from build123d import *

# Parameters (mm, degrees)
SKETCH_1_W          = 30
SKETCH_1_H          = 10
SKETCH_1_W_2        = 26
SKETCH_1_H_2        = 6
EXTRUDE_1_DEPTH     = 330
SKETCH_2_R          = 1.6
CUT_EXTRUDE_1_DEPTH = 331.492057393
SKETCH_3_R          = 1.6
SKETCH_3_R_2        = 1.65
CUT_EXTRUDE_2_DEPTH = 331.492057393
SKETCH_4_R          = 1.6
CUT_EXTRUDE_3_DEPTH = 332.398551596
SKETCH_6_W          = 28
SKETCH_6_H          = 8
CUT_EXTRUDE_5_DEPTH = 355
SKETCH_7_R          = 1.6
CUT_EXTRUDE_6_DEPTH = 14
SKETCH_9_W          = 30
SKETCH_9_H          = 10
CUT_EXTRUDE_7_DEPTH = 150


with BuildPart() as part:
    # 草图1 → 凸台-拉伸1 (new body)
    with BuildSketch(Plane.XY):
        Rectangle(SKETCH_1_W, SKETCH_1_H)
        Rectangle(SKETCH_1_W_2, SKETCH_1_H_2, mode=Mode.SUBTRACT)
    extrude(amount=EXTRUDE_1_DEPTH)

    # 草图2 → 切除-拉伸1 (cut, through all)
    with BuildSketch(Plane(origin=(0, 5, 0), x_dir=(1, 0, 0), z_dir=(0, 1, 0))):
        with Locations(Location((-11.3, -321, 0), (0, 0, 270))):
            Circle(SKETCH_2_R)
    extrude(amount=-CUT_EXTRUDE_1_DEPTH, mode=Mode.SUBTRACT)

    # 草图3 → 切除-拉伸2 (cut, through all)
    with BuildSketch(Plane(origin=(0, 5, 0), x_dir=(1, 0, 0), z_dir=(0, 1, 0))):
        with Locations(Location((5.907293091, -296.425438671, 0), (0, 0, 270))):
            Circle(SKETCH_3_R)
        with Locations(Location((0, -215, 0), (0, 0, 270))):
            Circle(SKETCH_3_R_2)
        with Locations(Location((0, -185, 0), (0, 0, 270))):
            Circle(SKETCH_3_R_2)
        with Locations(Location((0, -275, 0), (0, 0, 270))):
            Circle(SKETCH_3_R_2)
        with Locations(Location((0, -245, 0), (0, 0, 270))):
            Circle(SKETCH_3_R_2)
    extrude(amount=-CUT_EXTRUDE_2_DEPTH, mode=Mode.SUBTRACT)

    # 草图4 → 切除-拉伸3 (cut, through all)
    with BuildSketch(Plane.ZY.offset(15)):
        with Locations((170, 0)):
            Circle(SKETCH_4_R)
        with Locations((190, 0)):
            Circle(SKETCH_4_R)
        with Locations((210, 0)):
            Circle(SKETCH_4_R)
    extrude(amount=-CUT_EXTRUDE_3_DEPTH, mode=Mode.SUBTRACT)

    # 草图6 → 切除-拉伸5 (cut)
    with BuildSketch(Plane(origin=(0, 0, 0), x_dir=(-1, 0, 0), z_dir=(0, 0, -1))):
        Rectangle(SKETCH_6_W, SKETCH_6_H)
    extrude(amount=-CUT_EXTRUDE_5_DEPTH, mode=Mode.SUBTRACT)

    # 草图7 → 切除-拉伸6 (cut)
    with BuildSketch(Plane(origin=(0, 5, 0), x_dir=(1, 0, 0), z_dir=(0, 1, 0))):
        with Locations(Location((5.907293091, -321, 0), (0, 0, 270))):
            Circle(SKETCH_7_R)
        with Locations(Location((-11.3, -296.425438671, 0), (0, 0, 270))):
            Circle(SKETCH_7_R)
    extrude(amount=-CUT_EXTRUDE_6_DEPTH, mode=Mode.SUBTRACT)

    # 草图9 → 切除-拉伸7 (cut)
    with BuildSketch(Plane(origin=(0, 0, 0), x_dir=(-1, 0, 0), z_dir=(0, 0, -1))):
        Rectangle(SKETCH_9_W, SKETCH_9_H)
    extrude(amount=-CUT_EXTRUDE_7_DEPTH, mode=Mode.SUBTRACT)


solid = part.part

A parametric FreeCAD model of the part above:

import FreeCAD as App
import Part
import Sketcher
from FreeCAD import Vector


def add_polygon(sketch, points):
    """Adds a closed chain of lines whose ends are joined by coincident constraints."""
    first, n = sketch.GeometryCount, len(points)
    for a, b in zip(points, points[1:] + points[:1]):
        sketch.addGeometry(Part.LineSegment(App.Vector(*a, 0), App.Vector(*b, 0)), False)
    for i in range(n):
        sketch.addConstraint(Sketcher.Constraint("Coincident", first + i, 2, first + (i + 1) % n, 1))

doc = App.newDocument("Part")
body = doc.addObject("PartDesign::Body", "Body")

sketch1 = body.newObject("Sketcher::SketchObject", "Sketch")
sketch1.AttachmentSupport = (doc.getObject("XY_Plane"), [""])
sketch1.MapMode = "FlatFace"
add_polygon(sketch1, [(-15, 5), (-15, -5), (15, -5), (15, 5)])
add_polygon(sketch1, [(13, -3), (-13, -3), (-13, 3), (13, 3)])
sketch1.addConstraint(Sketcher.Constraint("Vertical", 0))
sketch1.addConstraint(Sketcher.Constraint("Horizontal", 1))
sketch1.addConstraint(Sketcher.Constraint("Vertical", 2))
sketch1.addConstraint(Sketcher.Constraint("Horizontal", 3))
sketch1.addConstraint(Sketcher.Constraint("Horizontal", 4))
sketch1.addConstraint(Sketcher.Constraint("Vertical", 5))
sketch1.addConstraint(Sketcher.Constraint("Horizontal", 6))
sketch1.addConstraint(Sketcher.Constraint("Vertical", 7))
sketch1.addConstraint(Sketcher.Constraint("Symmetric", 0, 2, 2, 2, -1, 1))
sketch1.addConstraint(Sketcher.Constraint("Symmetric", 4, 2, 6, 2, -1, 1))
sketch1.addConstraint(Sketcher.Constraint("DistanceX", 1, 1, 1, 2, 30.0))
sketch1.addConstraint(Sketcher.Constraint("DistanceX", 4, 2, 4, 1, 26.0))
sketch1.addConstraint(Sketcher.Constraint("DistanceY", 0, 2, 0, 1, 10.0))
sketch1.addConstraint(Sketcher.Constraint("DistanceY", 5, 1, 5, 2, 6.0))
pad1 = body.newObject("PartDesign::Pad", "Pad")
pad1.Profile = sketch1
pad1.Length = 330

sketch2 = body.newObject("Sketcher::SketchObject", "Sketch001")
sketch2.AttachmentSupport = (doc.getObject("XZ_Plane"), [""])
sketch2.MapMode = "FlatFace"
sketch2.AttachmentOffset = App.Placement(Vector(0, 0, -5), App.Rotation())
sketch2.addGeometry(Part.Circle(Vector(-11.3, 321, 0), Vector(0, 0, 1), 1.6), False)
sketch2.addConstraint(Sketcher.Constraint("Diameter", 0, 3.2))
sketch2.addConstraint(Sketcher.Constraint("DistanceY", -1, 1, 0, 3, 321.0))
sketch2.addConstraint(Sketcher.Constraint("DistanceX", 0, 3, -1, 1, 11.3))
pocket1 = body.newObject("PartDesign::Pocket", "Pocket")
pocket1.Profile = sketch2
pocket1.Type = "ThroughAll"
pocket1.Reversed = True

sketch3 = body.newObject("Sketcher::SketchObject", "Sketch002")
sketch3.AttachmentSupport = (doc.getObject("XZ_Plane"), [""])
sketch3.MapMode = "FlatFace"
sketch3.AttachmentOffset = App.Placement(Vector(0, 0, -5), App.Rotation())
sketch3.addGeometry(Part.Circle(Vector(5.9, 296.4, 0), Vector(0, 0, 1), 1.6), False)
sketch3.addGeometry(Part.Circle(Vector(0, 215, 0), Vector(0, 0, 1), 1.6), False)
sketch3.addGeometry(Part.Circle(Vector(0, 185, 0), Vector(0, 0, 1), 1.6), False)
sketch3.addGeometry(Part.Circle(Vector(0, 275, 0), Vector(0, 0, 1), 1.6), False)
sketch3.addGeometry(Part.Circle(Vector(0, 245, 0), Vector(0, 0, 1), 1.6), False)
sketch3.addConstraint(Sketcher.Constraint("Equal", 1, 2))
sketch3.addConstraint(Sketcher.Constraint("Equal", 2, 3))
sketch3.addConstraint(Sketcher.Constraint("Equal", 3, 4))
sketch3.addConstraint(Sketcher.Constraint("PointOnObject", 1, 3, -2))
sketch3.addConstraint(Sketcher.Constraint("PointOnObject", 2, 3, -2))
sketch3.addConstraint(Sketcher.Constraint("PointOnObject", 3, 3, -2))
sketch3.addConstraint(Sketcher.Constraint("PointOnObject", 4, 3, -2))
sketch3.addConstraint(Sketcher.Constraint("Diameter", 0, 3.2))
sketch3.addConstraint(Sketcher.Constraint("Diameter", 1, 3.3))
sketch3.addConstraint(Sketcher.Constraint("DistanceY", -1, 1, 1, 3, 215.0))
sketch3.addConstraint(Sketcher.Constraint("DistanceY", -1, 1, 2, 3, 185.0))
sketch3.addConstraint(Sketcher.Constraint("DistanceY", -1, 1, 3, 3, 275.0))
sketch3.addConstraint(Sketcher.Constraint("DistanceY", -1, 1, 4, 3, 245.0))
sketch3.addConstraint(Sketcher.Constraint("DistanceY", -1, 1, 0, 3, 296.425439))
sketch3.addConstraint(Sketcher.Constraint("DistanceX", -1, 1, 0, 3, 5.907293))
pocket2 = body.newObject("PartDesign::Pocket", "Pocket001")
pocket2.Profile = sketch3
pocket2.Type = "ThroughAll"
pocket2.Reversed = True

sketch4 = body.newObject("Sketcher::SketchObject", "Sketch003")
sketch4.AttachmentSupport = (doc.getObject("YZ_Plane"), [""])
sketch4.MapMode = "FlatFace"
sketch4.AttachmentOffset = App.Placement(Vector(0, 0, -15), App.Rotation())
sketch4.addGeometry(Part.Circle(Vector(0, 170, 0), Vector(0, 0, 1), 1.6), False)
sketch4.addGeometry(Part.Circle(Vector(0, 190, 0), Vector(0, 0, 1), 1.6), False)
sketch4.addGeometry(Part.Circle(Vector(0, 210, 0), Vector(0, 0, 1), 1.6), False)
sketch4.addConstraint(Sketcher.Constraint("Equal", 0, 1))
sketch4.addConstraint(Sketcher.Constraint("Equal", 1, 2))
sketch4.addConstraint(Sketcher.Constraint("PointOnObject", 0, 3, -2))
sketch4.addConstraint(Sketcher.Constraint("PointOnObject", 1, 3, -2))
sketch4.addConstraint(Sketcher.Constraint("PointOnObject", 2, 3, -2))
sketch4.addConstraint(Sketcher.Constraint("Diameter", 0, 3.2))
sketch4.addConstraint(Sketcher.Constraint("DistanceY", -1, 1, 0, 3, 170.0))
sketch4.addConstraint(Sketcher.Constraint("DistanceY", -1, 1, 1, 3, 190.0))
sketch4.addConstraint(Sketcher.Constraint("DistanceY", -1, 1, 2, 3, 210.0))
pocket3 = body.newObject("PartDesign::Pocket", "Pocket002")
pocket3.Profile = sketch4
pocket3.Type = "ThroughAll"
pocket3.Reversed = True

sketch5 = body.newObject("Sketcher::SketchObject", "Sketch004")
sketch5.AttachmentSupport = (doc.getObject("XY_Plane"), [""])
sketch5.MapMode = "FlatFace"
add_polygon(sketch5, [(14, 4), (14, -4), (-14, -4), (-14, 4)])
sketch5.addConstraint(Sketcher.Constraint("Vertical", 0))
sketch5.addConstraint(Sketcher.Constraint("Horizontal", 1))
sketch5.addConstraint(Sketcher.Constraint("Vertical", 2))
sketch5.addConstraint(Sketcher.Constraint("Horizontal", 3))
sketch5.addConstraint(Sketcher.Constraint("Symmetric", 0, 2, 2, 2, -1, 1))
sketch5.addConstraint(Sketcher.Constraint("DistanceX", 1, 2, 1, 1, 28.0))
sketch5.addConstraint(Sketcher.Constraint("DistanceY", 0, 2, 0, 1, 8.0))
pocket4 = body.newObject("PartDesign::Pocket", "Pocket003")
pocket4.Profile = sketch5
pocket4.Length = 355
pocket4.Reversed = True

sketch6 = body.newObject("Sketcher::SketchObject", "Sketch005")
sketch6.AttachmentSupport = (doc.getObject("XZ_Plane"), [""])
sketch6.MapMode = "FlatFace"
sketch6.AttachmentOffset = App.Placement(Vector(0, 0, -5), App.Rotation())
sketch6.addGeometry(Part.Circle(Vector(5.9, 321, 0), Vector(0, 0, 1), 1.6), False)
sketch6.addGeometry(Part.Circle(Vector(-11.3, 296.4, 0), Vector(0, 0, 1), 1.6), False)
sketch6.addConstraint(Sketcher.Constraint("Equal", 0, 1))
sketch6.addConstraint(Sketcher.Constraint("Diameter", 0, 3.2))
sketch6.addConstraint(Sketcher.Constraint("DistanceY", -1, 1, 0, 3, 321.0))
sketch6.addConstraint(Sketcher.Constraint("DistanceX", 1, 3, -1, 1, 11.3))
sketch6.addConstraint(Sketcher.Constraint("DistanceY", -1, 1, 1, 3, 296.425439))
sketch6.addConstraint(Sketcher.Constraint("DistanceX", -1, 1, 0, 3, 5.907293))
pocket5 = body.newObject("PartDesign::Pocket", "Pocket004")
pocket5.Profile = sketch6
pocket5.Length = 14
pocket5.Reversed = True

sketch7 = body.newObject("Sketcher::SketchObject", "Sketch006")
sketch7.AttachmentSupport = (doc.getObject("XY_Plane"), [""])
sketch7.MapMode = "FlatFace"
add_polygon(sketch7, [(15, 5), (15, -5), (-15, -5), (-15, 5)])
sketch7.addConstraint(Sketcher.Constraint("Vertical", 0))
sketch7.addConstraint(Sketcher.Constraint("Horizontal", 1))
sketch7.addConstraint(Sketcher.Constraint("Vertical", 2))
sketch7.addConstraint(Sketcher.Constraint("Horizontal", 3))
sketch7.addConstraint(Sketcher.Constraint("Symmetric", 0, 2, 2, 2, -1, 1))
sketch7.addConstraint(Sketcher.Constraint("DistanceX", 1, 2, 1, 1, 30.0))
sketch7.addConstraint(Sketcher.Constraint("DistanceY", 0, 2, 0, 1, 10.0))
pocket6 = body.newObject("PartDesign::Pocket", "Pocket005")
pocket6.Profile = sketch7
pocket6.Length = 150
pocket6.Reversed = True

doc.recompute()
